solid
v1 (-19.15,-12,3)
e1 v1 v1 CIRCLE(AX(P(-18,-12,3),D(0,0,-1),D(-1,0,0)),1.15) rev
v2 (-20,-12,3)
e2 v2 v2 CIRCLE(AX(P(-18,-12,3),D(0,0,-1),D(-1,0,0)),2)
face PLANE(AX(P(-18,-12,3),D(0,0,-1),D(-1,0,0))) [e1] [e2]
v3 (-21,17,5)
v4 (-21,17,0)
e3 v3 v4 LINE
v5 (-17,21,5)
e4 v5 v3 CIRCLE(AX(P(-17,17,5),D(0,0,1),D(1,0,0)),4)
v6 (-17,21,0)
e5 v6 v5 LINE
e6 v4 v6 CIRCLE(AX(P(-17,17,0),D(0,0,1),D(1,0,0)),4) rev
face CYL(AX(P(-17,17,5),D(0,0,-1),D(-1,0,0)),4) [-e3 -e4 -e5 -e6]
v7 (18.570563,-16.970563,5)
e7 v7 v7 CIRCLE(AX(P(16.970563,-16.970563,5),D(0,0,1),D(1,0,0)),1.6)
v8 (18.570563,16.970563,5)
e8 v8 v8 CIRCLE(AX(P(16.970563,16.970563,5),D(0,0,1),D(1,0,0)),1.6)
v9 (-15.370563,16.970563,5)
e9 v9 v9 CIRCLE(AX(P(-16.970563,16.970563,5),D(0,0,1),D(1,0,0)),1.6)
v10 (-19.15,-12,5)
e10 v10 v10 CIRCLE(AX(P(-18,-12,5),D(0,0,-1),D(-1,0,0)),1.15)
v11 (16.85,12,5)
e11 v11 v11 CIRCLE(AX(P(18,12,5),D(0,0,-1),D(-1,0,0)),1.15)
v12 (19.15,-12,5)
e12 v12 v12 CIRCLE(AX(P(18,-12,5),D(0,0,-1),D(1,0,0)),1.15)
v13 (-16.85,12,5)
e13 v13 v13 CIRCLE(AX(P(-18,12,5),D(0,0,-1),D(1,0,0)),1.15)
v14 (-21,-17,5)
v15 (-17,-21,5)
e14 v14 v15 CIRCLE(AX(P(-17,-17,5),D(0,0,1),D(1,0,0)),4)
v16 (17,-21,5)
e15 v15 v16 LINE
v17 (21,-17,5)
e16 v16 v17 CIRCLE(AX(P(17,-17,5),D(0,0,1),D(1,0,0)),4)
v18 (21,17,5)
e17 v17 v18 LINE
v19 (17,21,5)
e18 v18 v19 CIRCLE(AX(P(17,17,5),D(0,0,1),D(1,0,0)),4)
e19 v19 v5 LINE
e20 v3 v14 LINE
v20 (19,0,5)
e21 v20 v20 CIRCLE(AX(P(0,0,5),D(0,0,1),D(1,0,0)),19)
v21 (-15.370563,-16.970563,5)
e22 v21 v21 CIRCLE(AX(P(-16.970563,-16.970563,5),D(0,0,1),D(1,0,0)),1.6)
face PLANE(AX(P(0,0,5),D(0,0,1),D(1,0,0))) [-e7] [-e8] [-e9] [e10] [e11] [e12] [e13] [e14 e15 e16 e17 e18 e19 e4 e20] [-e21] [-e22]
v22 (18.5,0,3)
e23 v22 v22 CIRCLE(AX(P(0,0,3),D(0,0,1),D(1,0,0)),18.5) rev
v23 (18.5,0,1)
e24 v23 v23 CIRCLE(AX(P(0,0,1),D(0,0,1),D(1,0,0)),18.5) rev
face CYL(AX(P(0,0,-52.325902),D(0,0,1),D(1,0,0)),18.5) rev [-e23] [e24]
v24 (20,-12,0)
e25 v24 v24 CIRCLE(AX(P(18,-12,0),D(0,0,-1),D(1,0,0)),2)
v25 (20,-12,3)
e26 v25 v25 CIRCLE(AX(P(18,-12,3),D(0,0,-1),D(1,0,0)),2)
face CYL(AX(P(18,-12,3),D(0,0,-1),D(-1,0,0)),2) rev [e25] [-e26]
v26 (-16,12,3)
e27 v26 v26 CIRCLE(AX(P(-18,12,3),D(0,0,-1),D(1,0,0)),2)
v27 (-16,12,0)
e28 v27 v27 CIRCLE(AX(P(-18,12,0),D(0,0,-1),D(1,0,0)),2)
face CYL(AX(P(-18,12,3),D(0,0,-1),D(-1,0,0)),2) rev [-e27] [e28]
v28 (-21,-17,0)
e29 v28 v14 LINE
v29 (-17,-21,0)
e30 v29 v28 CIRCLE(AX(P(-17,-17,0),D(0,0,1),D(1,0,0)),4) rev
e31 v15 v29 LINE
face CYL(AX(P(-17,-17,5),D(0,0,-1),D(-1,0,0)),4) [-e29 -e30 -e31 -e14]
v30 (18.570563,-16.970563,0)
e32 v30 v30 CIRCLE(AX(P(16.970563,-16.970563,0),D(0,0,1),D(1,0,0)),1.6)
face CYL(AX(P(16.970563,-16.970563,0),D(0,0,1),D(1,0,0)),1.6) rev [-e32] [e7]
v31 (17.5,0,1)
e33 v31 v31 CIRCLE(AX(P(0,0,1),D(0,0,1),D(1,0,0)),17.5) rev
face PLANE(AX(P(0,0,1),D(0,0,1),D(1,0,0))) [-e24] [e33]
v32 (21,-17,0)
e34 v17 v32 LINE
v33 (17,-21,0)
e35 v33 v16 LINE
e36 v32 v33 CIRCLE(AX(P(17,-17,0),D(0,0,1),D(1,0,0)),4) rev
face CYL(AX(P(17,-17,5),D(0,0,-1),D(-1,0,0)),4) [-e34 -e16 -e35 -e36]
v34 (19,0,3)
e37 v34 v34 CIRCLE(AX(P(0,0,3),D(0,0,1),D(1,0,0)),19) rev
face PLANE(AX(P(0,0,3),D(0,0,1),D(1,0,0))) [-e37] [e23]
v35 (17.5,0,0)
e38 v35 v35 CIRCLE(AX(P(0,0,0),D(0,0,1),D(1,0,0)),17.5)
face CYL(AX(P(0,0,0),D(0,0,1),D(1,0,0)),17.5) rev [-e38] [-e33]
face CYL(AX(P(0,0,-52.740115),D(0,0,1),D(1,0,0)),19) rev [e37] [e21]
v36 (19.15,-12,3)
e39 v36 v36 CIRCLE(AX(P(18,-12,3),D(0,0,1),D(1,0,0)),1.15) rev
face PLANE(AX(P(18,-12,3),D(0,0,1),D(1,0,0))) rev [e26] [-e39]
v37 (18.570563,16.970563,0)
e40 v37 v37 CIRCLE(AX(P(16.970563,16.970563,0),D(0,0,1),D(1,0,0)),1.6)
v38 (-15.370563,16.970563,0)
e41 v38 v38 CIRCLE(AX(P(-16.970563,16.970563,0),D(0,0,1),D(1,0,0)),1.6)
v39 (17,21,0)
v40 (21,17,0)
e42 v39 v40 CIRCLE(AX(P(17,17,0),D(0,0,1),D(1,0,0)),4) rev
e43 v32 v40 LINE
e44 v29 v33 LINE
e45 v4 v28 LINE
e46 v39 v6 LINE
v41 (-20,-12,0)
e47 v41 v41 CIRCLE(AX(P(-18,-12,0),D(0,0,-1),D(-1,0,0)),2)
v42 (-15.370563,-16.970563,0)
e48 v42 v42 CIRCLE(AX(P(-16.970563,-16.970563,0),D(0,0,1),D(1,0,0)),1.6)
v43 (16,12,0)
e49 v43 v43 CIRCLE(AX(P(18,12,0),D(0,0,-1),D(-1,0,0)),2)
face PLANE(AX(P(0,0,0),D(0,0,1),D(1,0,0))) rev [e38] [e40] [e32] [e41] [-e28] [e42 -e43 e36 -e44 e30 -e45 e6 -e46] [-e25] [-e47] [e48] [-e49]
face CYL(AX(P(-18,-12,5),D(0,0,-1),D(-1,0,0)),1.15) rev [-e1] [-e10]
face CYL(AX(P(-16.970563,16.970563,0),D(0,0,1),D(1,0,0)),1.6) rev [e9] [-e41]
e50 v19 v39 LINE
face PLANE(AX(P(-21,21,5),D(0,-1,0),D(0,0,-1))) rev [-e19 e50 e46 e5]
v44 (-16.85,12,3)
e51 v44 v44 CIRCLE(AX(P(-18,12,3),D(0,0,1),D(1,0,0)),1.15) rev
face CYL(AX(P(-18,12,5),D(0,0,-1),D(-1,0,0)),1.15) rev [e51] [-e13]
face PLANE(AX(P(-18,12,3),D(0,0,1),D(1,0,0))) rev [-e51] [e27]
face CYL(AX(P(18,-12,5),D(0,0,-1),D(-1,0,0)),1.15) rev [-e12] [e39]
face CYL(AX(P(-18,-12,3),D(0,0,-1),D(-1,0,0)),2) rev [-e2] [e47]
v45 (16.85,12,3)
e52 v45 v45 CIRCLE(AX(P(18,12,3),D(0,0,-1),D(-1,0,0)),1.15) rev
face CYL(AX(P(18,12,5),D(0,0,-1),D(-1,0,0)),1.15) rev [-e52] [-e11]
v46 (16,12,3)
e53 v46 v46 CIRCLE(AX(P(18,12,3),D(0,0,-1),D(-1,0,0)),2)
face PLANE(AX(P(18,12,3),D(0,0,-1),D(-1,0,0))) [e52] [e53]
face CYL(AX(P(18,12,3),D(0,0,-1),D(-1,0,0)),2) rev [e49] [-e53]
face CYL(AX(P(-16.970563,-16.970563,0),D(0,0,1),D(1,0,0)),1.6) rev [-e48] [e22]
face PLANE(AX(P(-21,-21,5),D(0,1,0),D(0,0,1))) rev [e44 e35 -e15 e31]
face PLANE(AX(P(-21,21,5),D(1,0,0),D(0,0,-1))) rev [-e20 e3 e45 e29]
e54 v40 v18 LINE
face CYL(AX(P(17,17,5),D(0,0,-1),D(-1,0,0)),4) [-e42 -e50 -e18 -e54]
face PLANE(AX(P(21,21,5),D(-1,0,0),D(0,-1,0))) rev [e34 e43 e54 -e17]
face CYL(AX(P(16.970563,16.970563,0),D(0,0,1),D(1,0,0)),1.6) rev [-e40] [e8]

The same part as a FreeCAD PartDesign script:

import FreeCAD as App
import Part
import Sketcher


def edges_at(feature, points):
    """Names of the edges that pass closest to the given points."""
    edges = feature.Shape.Edges
    near = lambda p: min(range(len(edges)), key=lambda i: edges[i].distToShape(Part.Vertex(*p))[0])
    return sorted({f"Edge{near(p) + 1}" for p in points})


def add_polygon(sketch, points):
    """Adds a closed chain of lines whose ends are joined by coincident constraints."""
    first, n = sketch.GeometryCount, len(points)
    for a, b in zip(points, points[1:] + points[:1]):
        sketch.addGeometry(Part.LineSegment(App.Vector(*a, 0), App.Vector(*b, 0)), False)
    for i in range(n):
        sketch.addConstraint(Sketcher.Constraint("Coincident", first + i, 2, first + (i + 1) % n, 1))

doc = App.newDocument("Part")
body = doc.addObject("PartDesign::Body", "Body")

sketch1 = doc.addObject("Sketcher::SketchObject", "Sketch")
body.addObject(sketch1)
sketch1.AttachmentSupport = (doc.XY_Plane, [""])
sketch1.MapMode = "FlatFace"
add_polygon(sketch1, [(-21, 21), (-21, -21), (21, -21), (21, 21)])
sketch1.addConstraint(Sketcher.Constraint("Vertical", 0))
sketch1.addConstraint(Sketcher.Constraint("Horizontal", 1))
sketch1.addConstraint(Sketcher.Constraint("Vertical", 2))
sketch1.addConstraint(Sketcher.Constraint("Horizontal", 3))
sketch1.addConstraint(Sketcher.Constraint("Symmetric", 0, 2, 2, 2, -1, 1))
sketch1.addConstraint(Sketcher.Constraint("Equal", 3, 0))
sketch1.addConstraint(Sketcher.Constraint("DistanceX", 1, 1, 1, 2, 42.0))
pad1 = doc.addObject("PartDesign::Pad", "Pad")
body.addObject(pad1)
pad1.Profile = sketch1
pad1.Length = 5

sketch2 = doc.addObject("Sketcher::SketchObject", "Sketch001")
body.addObject(sketch2)
sketch2.AttachmentSupport = (doc.XY_Plane, [""])
sketch2.MapMode = "FlatFace"
sketch2.AttachmentOffset = App.Placement(App.Vector(0, 0, 5), App.Rotation())
sketch2.addGeometry(Part.Circle(App.Vector(0, 0, 0), App.Vector(0, 0, 1), 18), False)
sketch2.addConstraint(Sketcher.Constraint("Coincident", 0, 3, -1, 1))
sketch2.addConstraint(Sketcher.Constraint("Diameter", 0, 35.0))
pocket1 = doc.addObject("PartDesign::Pocket", "Pocket")
body.addObject(pocket1)
pocket1.Profile = sketch2
pocket1.Type = "ThroughAll"

sketch3 = doc.addObject("Sketcher::SketchObject", "Sketch002")
body.addObject(sketch3)
sketch3.AttachmentSupport = (doc.XY_Plane, [""])
sketch3.MapMode = "FlatFace"
sketch3.AttachmentOffset = App.Placement(App.Vector(0, 0, 5), App.Rotation())
sketch3.addGeometry(Part.Circle(App.Vector(0, 0, 0), App.Vector(0, 0, 1), 18), False)
sketch3.addConstraint(Sketcher.Constraint("Coincident", 0, 3, -1, 1))
sketch3.addConstraint(Sketcher.Constraint("Diameter", 0, 37.0))
pocket2 = doc.addObject("PartDesign::Pocket", "Pocket001")
body.addObject(pocket2)
pocket2.Profile = sketch3
pocket2.Length = 4

sketch4 = doc.addObject("Sketcher::SketchObject", "Sketch003")
body.addObject(sketch4)
sketch4.AttachmentSupport = (doc.XY_Plane, [""])
sketch4.MapMode = "FlatFace"
sketch4.AttachmentOffset = App.Placement(App.Vector(0, 0, 5), App.Rotation())
sketch4.addGeometry(Part.Circle(App.Vector(0, 0, 0), App.Vector(0, 0, 1), 19), False)
sketch4.addConstraint(Sketcher.Constraint("Coincident", 0, 3, -1, 1))
sketch4.addConstraint(Sketcher.Constraint("Diameter", 0, 38.0))
pocket3 = doc.addObject("PartDesign::Pocket", "Pocket002")
body.addObject(pocket3)
pocket3.Profile = sketch4
pocket3.Length = 2
doc.recompute()

fillet = doc.addObject("PartDesign::Fillet", "Fillet")
body.addObject(fillet)
fillet.Base = (pocket3, edges_at(pocket3, [
    (21, -21, 2.5),
    (-21, -21, 2.5),
    (-21, 21, 2.5),
    (21, 21, 2.5),
]))
fillet.Radius = 4

sketch5 = doc.addObject("Sketcher::SketchObject", "Sketch004")
body.addObject(sketch5)
sketch5.AttachmentSupport = (doc.XY_Plane, [""])
sketch5.MapMode = "FlatFace"
sketch5.AttachmentOffset = App.Placement(App.Vector(0, 0, 5), App.Rotation())
sketch5.addGeometry(Part.Circle(App.Vector(-17, 17, 0), App.Vector(0, 0, 1), 1.6), False)
sketch5.addGeometry(Part.Circle(App.Vector(17, 17, 0), App.Vector(0, 0, 1), 1.6), False)
sketch5.addGeometry(Part.Circle(App.Vector(17, -17, 0), App.Vector(0, 0, 1), 1.6), False)
sketch5.addGeometry(Part.Circle(App.Vector(-17, -17, 0), App.Vector(0, 0, 1), 1.6), False)
sketch5.addConstraint(Sketcher.Constraint("Equal", 0, 1))
sketch5.addConstraint(Sketcher.Constraint("Equal", 1, 2))
sketch5.addConstraint(Sketcher.Constraint("Equal", 2, 3))
sketch5.addConstraint(Sketcher.Constraint("Symmetric", 0, 3, 2, 3, -1, 1))
sketch5.addConstraint(Sketcher.Constraint("Symmetric", 1, 3, 3, 3, -1, 1))
sketch5.addConstraint(Sketcher.Constraint("Symmetric", 0, 3, 1, 3, -2))
sketch5.addConstraint(Sketcher.Constraint("Diameter", 0, 3.2))
sketch5.addConstraint(Sketcher.Constraint("DistanceX", 0, 3, -1, 1, 16.970563))
sketch5.addConstraint(Sketcher.Constraint("DistanceY", -1, 1, 0, 3, 16.970563))
pocket4 = doc.addObject("PartDesign::Pocket", "Pocket003")
body.addObject(pocket4)
pocket4.Profile = sketch5
pocket4.Type = "ThroughAll"

sketch6 = doc.addObject("Sketcher::SketchObject", "Sketch005")
body.addObject(sketch6)
sketch6.AttachmentSupport = (doc.XY_Plane, [""])
sketch6.MapMode = "FlatFace"
sketch6.addGeometry(Part.Circle(App.Vector(18, 12, 0), App.Vector(0, 0, 1), 1.1), False)
sketch6.addGeometry(Part.Circle(App.Vector(-18, 12, 0), App.Vector(0, 0, 1), 1.1), False)
sketch6.addGeometry(Part.Circle(App.Vector(-18, -12, 0), App.Vector(0, 0, 1), 1.1), False)
sketch6.addGeometry(Part.Circle(App.Vector(18, -12, 0), App.Vector(0, 0, 1), 1.1), False)
sketch6.addConstraint(Sketcher.Constraint("Equal", 0, 1))
sketch6.addConstraint(Sketcher.Constraint("Equal", 1, 2))
sketch6.addConstraint(Sketcher.Constraint("Equal", 2, 3))
sketch6.addConstraint(Sketcher.Constraint("Symmetric", 0, 3, 2, 3, -1, 1))
sketch6.addConstraint(Sketcher.Constraint("Symmetric", 1, 3, 3, 3, -1, 1))
sketch6.addConstraint(Sketcher.Constraint("Symmetric", 0, 3, 1, 3, -2))
sketch6.addConstraint(Sketcher.Constraint("Diameter", 0, 2.3))
sketch6.addConstraint(Sketcher.Constraint("DistanceX", -1, 1, 0, 3, 18.0))
sketch6.addConstraint(Sketcher.Constraint("DistanceY", -1, 1, 0, 3, 12.0))
pocket5 = doc.addObject("PartDesign::Pocket", "Pocket004")
body.addObject(pocket5)
pocket5.Profile = sketch6
pocket5.Type = "ThroughAll"
pocket5.Reversed = True

sketch7 = doc.addObject("Sketcher::SketchObject", "Sketch006")
body.addObject(sketch7)
sketch7.AttachmentSupport = (doc.XY_Plane, [""])
sketch7.MapMode = "FlatFace"
sketch7.addGeometry(Part.Circle(App.Vector(18, 12, 0), App.Vector(0, 0, 1), 2), False)
sketch7.addGeometry(Part.Circle(App.Vector(-18, 12, 0), App.Vector(0, 0, 1), 2), False)
sketch7.addGeometry(Part.Circle(App.Vector(-18, -12, 0), App.Vector(0, 0, 1), 2), False)
sketch7.addGeometry(Part.Circle(App.Vector(18, -12, 0), App.Vector(0, 0, 1), 2), False)
sketch7.addConstraint(Sketcher.Constraint("Equal", 0, 1))
sketch7.addConstraint(Sketcher.Constraint("Equal", 1, 2))
sketch7.addConstraint(Sketcher.Constraint("Equal", 2, 3))
sketch7.addConstraint(Sketcher.Constraint("Symmetric", 0, 3, 2, 3, -1, 1))
sketch7.addConstraint(Sketcher.Constraint("Symmetric", 1, 3, 3, 3, -1, 1))
sketch7.addConstraint(Sketcher.Constraint("Symmetric", 0, 3, 1, 3, -2))
sketch7.addConstraint(Sketcher.Constraint("Diameter", 0, 4.0))
sketch7.addConstraint(Sketcher.Constraint("DistanceX", -1, 1, 0, 3, 18.0))
sketch7.addConstraint(Sketcher.Constraint("DistanceY", -1, 1, 0, 3, 12.0))
pocket6 = doc.addObject("PartDesign::Pocket", "Pocket005")
body.addObject(pocket6)
pocket6.Profile = sketch7
pocket6.Length = 3
pocket6.Reversed = True

doc.recompute()
